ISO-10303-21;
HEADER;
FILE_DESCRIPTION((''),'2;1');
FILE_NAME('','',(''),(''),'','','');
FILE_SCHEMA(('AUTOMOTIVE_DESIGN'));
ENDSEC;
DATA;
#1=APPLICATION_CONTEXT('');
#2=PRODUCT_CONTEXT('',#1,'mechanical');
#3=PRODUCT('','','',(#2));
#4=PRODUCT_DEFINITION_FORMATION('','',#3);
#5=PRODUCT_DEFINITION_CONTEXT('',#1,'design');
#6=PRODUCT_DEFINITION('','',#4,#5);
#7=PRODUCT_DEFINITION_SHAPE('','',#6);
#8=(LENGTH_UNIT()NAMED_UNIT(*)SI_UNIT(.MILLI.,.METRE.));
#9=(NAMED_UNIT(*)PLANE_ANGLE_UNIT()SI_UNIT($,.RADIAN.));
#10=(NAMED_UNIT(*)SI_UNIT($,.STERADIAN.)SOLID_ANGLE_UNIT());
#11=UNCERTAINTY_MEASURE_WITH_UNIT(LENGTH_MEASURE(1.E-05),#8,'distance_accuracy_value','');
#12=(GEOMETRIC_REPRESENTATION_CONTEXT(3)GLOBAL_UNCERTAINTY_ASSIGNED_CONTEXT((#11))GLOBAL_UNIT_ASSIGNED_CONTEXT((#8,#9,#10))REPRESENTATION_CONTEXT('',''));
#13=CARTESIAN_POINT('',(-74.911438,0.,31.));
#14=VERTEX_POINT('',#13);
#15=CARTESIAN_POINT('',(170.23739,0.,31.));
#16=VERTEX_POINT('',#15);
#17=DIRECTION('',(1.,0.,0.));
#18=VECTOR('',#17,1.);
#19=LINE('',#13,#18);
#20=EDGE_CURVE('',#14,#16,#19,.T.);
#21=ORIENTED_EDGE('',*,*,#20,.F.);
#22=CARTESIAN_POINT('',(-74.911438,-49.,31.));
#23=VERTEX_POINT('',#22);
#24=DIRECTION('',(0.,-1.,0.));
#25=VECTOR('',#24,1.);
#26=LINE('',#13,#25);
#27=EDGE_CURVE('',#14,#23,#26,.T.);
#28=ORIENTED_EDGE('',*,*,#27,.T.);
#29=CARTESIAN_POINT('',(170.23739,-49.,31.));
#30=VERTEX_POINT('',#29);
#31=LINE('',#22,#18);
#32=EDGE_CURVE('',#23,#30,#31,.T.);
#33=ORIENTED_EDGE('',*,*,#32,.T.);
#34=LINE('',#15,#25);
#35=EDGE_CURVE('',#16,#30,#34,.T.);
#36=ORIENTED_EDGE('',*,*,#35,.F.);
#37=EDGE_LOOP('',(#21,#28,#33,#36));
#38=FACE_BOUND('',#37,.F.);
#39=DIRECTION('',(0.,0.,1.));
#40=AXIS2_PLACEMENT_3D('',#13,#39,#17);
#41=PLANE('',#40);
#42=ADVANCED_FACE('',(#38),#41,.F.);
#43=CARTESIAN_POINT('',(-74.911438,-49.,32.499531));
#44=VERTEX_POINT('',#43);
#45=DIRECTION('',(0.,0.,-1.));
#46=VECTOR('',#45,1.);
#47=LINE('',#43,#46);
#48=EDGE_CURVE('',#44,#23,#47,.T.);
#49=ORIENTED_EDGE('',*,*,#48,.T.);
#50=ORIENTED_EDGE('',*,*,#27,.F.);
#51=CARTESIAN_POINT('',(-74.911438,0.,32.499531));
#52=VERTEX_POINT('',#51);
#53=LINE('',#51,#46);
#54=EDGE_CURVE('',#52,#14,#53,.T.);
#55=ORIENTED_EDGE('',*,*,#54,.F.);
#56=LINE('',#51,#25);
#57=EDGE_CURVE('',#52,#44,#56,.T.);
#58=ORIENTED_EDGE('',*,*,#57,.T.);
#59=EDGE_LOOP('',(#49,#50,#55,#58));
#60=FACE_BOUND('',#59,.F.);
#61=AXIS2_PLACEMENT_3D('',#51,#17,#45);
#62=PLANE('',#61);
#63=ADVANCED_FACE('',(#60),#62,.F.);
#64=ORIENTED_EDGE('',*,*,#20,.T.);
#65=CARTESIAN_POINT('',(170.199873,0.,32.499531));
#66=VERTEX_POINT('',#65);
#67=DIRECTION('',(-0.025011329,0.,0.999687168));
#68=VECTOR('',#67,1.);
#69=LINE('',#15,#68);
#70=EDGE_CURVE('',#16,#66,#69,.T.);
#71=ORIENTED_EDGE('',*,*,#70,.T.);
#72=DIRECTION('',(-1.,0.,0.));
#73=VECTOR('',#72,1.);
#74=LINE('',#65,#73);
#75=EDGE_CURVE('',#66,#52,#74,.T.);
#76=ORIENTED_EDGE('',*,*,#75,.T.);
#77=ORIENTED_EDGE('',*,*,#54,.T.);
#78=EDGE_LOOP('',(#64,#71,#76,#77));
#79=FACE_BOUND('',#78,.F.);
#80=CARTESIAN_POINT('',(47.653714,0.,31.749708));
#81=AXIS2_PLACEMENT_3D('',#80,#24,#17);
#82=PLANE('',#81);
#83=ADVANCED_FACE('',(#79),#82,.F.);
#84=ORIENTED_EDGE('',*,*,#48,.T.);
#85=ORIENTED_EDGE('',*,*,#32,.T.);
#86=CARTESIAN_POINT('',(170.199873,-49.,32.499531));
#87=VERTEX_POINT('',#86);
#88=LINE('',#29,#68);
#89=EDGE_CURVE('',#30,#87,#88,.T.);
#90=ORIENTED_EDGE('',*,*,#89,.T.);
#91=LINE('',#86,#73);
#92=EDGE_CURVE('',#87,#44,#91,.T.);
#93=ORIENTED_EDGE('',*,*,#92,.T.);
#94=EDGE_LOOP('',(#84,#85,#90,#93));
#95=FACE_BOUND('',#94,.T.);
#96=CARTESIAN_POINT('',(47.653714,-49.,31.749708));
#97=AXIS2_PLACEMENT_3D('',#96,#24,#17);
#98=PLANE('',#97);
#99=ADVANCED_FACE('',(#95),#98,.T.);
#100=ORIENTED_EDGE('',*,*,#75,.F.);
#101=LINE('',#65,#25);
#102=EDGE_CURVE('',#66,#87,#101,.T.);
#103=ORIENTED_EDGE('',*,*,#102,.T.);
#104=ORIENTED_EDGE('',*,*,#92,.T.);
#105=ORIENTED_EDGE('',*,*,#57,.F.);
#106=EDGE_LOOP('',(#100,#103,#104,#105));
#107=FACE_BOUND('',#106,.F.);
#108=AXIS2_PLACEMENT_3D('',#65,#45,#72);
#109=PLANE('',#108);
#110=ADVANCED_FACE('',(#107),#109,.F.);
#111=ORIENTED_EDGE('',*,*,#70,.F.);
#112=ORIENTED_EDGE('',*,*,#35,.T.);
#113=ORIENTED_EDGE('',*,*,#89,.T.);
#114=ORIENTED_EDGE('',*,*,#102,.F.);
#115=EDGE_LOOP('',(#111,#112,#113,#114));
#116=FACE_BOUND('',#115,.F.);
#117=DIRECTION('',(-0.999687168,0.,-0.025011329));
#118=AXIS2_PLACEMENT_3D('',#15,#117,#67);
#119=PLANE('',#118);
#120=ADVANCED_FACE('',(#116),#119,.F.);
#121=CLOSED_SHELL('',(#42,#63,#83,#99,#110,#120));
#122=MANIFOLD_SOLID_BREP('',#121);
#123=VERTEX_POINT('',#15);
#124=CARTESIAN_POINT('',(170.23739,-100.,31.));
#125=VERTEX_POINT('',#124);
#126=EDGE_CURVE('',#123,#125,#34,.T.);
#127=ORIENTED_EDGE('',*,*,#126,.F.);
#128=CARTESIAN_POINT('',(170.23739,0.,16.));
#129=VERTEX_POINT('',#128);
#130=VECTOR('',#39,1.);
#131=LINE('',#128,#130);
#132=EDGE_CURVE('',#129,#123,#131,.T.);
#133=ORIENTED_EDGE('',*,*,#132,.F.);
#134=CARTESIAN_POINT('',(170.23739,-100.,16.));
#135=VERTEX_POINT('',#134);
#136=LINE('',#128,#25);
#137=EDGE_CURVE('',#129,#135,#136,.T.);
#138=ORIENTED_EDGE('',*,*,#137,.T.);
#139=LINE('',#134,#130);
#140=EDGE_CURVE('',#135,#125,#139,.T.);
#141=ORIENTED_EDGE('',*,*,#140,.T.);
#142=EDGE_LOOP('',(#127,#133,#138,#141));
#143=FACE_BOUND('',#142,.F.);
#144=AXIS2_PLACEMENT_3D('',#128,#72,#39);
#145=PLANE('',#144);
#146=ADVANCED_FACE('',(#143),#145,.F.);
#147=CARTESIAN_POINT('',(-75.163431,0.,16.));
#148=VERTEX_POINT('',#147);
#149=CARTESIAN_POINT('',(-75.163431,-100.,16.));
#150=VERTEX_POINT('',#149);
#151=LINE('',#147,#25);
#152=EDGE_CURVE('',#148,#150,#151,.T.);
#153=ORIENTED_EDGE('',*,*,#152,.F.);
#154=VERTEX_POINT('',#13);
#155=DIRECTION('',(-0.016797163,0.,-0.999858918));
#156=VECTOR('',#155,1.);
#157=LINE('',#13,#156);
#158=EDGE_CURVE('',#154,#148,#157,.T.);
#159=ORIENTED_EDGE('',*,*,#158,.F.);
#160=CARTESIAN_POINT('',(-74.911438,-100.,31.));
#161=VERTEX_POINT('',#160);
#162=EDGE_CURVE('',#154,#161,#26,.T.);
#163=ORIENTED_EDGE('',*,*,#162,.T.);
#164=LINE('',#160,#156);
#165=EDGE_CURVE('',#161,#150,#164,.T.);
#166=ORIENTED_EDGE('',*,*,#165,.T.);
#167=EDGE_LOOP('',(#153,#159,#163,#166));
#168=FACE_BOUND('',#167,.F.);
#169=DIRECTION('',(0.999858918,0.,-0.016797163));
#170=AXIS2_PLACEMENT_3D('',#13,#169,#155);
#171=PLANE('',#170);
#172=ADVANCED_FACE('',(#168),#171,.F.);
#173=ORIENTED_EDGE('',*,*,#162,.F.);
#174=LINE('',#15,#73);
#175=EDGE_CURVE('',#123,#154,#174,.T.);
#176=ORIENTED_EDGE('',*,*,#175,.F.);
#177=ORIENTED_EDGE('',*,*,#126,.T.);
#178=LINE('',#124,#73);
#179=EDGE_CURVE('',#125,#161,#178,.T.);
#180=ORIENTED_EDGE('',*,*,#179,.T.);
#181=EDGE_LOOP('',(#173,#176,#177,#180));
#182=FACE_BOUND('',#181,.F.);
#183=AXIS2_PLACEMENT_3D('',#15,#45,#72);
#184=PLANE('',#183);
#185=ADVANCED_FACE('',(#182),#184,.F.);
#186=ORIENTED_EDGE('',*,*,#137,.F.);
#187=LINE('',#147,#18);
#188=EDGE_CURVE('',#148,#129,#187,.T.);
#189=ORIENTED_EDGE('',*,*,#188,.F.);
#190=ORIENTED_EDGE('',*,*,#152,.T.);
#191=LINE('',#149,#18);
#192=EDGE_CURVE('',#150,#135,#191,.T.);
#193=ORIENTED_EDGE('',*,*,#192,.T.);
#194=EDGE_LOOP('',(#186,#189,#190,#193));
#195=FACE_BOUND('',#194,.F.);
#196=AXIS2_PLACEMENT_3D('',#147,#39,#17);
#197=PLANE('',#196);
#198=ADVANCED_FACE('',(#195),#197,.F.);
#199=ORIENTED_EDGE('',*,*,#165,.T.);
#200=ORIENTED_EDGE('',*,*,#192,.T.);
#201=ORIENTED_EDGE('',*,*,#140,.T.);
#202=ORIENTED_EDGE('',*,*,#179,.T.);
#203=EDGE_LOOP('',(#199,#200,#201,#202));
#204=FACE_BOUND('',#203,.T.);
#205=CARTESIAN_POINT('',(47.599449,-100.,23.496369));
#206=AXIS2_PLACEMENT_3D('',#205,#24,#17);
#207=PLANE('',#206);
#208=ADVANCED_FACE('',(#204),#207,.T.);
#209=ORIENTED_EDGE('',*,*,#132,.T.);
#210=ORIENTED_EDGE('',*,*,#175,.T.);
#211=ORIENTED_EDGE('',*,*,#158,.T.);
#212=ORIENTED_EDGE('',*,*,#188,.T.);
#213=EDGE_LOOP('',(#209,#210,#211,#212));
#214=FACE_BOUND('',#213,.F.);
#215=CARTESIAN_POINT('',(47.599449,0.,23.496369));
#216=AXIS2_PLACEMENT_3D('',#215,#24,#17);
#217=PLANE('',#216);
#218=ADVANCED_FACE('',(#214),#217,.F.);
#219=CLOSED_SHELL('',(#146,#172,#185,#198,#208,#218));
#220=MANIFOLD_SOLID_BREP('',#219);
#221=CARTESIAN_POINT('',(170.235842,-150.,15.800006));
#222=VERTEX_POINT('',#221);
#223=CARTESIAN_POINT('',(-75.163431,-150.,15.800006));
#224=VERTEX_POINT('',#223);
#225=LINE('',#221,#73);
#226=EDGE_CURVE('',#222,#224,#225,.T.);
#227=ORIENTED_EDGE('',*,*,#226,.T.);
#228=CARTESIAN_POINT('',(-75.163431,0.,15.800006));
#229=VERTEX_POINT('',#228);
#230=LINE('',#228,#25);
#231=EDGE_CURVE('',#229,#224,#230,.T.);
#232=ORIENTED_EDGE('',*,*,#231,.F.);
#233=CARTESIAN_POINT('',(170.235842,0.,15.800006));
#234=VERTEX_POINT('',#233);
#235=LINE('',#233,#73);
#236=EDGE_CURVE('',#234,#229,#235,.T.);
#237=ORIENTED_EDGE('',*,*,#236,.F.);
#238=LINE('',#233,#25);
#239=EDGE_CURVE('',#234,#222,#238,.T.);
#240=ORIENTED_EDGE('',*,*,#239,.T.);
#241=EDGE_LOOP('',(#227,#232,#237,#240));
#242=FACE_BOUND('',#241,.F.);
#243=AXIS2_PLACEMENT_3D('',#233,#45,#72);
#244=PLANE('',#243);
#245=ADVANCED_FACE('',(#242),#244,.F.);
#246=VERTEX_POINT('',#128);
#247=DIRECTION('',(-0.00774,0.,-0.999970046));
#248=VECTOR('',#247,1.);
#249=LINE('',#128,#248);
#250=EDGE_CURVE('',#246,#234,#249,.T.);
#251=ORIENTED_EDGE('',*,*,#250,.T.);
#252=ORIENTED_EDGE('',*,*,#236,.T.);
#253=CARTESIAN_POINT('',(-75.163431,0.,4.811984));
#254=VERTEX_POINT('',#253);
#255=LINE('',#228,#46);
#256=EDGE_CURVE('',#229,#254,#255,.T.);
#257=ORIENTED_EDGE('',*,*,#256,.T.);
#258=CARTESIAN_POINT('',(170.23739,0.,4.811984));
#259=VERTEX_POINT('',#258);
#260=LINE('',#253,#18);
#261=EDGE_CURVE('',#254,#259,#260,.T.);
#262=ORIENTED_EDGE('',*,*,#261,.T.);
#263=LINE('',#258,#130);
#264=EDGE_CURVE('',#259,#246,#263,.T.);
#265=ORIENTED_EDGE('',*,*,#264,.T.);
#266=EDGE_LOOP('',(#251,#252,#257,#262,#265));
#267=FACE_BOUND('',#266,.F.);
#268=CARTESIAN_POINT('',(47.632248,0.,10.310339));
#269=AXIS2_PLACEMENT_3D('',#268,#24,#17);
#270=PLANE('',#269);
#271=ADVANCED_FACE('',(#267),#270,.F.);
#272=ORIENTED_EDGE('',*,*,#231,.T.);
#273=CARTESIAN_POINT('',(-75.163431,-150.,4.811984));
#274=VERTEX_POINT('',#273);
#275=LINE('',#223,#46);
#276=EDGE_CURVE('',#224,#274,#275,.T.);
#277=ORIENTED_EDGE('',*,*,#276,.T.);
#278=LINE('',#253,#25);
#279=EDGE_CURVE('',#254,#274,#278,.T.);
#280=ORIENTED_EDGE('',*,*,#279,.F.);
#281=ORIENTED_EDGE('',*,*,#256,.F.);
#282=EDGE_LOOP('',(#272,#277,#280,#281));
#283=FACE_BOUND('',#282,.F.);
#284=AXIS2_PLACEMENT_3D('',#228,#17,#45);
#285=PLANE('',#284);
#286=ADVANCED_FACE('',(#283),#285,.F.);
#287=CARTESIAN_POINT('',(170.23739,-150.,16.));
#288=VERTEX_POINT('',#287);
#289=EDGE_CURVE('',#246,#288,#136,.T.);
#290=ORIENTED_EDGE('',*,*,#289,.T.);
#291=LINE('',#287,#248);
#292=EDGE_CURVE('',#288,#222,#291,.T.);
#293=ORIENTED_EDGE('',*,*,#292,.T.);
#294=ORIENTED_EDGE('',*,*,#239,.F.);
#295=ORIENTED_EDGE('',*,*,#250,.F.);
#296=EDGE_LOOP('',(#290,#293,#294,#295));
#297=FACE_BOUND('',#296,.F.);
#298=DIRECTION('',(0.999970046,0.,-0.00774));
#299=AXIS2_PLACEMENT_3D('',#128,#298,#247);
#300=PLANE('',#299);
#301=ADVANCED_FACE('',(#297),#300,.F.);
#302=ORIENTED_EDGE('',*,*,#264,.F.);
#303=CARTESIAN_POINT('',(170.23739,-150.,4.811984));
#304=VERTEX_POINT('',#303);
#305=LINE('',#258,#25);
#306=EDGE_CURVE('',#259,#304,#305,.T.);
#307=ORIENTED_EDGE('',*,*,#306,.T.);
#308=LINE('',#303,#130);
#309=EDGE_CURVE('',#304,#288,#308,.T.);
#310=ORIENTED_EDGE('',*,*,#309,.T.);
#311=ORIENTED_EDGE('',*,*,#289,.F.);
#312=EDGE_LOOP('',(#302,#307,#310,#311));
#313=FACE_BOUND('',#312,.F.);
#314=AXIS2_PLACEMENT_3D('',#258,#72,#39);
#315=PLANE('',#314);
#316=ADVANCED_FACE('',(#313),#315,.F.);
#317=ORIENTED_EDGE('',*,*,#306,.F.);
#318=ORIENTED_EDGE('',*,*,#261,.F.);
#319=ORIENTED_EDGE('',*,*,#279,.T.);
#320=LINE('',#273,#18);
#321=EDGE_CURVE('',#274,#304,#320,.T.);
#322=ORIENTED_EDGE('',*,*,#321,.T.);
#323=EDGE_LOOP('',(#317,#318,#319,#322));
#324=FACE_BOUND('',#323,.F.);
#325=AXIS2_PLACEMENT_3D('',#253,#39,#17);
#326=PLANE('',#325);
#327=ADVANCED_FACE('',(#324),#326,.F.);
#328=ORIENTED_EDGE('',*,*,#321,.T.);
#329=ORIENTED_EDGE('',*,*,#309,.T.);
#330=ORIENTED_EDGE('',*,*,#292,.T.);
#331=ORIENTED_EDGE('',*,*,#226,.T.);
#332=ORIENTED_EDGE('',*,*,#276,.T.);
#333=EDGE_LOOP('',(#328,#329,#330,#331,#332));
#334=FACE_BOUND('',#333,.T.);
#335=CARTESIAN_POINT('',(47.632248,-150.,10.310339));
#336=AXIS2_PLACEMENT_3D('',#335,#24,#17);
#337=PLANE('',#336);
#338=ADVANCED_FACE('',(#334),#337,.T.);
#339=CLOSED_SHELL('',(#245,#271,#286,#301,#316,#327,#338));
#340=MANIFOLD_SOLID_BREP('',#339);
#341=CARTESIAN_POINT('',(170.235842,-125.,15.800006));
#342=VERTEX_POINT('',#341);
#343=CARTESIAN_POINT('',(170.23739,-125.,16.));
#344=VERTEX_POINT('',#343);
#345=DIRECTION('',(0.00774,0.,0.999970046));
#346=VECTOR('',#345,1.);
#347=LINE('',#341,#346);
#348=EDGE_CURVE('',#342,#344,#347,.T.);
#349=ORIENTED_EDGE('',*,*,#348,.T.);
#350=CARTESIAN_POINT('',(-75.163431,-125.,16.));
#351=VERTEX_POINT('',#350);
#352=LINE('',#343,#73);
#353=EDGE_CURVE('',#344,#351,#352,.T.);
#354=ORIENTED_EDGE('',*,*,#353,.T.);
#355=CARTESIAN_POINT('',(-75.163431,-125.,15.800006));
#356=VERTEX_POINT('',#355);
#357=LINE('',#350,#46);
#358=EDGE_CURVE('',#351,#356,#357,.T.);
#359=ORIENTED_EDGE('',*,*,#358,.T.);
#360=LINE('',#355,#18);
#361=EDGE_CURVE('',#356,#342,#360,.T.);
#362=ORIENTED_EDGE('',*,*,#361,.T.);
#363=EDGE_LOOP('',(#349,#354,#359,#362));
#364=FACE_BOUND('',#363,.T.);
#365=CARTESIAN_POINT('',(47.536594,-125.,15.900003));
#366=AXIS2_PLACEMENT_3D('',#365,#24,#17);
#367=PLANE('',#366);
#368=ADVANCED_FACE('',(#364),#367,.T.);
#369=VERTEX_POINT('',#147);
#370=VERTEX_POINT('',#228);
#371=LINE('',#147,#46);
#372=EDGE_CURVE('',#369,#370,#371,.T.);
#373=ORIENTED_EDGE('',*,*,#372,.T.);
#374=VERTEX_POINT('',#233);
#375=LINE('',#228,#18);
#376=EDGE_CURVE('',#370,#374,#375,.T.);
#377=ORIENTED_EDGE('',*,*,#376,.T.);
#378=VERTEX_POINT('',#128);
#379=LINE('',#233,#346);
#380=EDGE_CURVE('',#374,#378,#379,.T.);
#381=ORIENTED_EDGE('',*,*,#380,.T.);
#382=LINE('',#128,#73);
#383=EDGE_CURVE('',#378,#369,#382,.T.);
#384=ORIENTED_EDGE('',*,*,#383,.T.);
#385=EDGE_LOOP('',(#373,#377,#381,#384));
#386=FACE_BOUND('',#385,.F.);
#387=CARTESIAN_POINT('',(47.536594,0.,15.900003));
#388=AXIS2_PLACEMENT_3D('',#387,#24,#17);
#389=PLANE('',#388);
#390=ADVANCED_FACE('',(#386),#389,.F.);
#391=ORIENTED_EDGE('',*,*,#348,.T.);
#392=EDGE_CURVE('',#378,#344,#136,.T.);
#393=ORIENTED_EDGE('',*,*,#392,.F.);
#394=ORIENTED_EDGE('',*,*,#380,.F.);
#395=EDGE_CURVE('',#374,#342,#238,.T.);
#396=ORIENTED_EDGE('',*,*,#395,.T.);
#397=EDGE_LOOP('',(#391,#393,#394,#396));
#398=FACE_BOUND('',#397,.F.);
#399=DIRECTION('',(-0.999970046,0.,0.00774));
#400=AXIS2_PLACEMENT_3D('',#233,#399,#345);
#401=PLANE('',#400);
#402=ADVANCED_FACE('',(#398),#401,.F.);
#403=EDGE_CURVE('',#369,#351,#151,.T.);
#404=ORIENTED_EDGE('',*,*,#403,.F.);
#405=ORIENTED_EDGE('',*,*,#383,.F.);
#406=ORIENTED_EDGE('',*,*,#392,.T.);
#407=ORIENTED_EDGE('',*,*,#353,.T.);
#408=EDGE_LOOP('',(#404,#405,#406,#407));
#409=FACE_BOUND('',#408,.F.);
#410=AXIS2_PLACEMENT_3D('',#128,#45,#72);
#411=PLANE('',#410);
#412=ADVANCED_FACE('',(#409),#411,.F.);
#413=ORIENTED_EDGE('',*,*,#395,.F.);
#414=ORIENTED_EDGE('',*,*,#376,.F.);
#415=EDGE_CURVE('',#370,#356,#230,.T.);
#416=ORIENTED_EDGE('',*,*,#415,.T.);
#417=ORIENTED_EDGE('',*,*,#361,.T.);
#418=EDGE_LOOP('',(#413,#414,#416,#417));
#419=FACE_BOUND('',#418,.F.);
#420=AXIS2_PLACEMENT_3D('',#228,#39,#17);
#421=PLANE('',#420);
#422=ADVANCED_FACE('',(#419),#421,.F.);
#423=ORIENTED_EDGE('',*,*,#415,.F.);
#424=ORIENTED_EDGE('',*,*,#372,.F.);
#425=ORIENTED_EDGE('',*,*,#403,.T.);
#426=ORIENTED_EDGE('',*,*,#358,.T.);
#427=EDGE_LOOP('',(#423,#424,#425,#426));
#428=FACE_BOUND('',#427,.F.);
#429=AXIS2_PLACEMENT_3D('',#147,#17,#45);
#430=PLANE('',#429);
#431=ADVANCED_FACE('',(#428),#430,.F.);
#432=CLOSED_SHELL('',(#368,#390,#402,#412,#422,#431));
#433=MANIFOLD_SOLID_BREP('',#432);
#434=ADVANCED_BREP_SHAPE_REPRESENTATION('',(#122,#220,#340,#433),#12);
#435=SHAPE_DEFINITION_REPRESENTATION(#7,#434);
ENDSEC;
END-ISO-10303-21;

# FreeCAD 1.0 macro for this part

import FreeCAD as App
import Part
import Sketcher
from FreeCAD import Vector

doc = App.newDocument("Part")
body = doc.addObject("PartDesign::Body", "Body")

sketch1 = doc.addObject("Sketcher::SketchObject", "Sketch")
body.addObject(sketch1)
sketch1.AttachmentSupport = (doc.XZ_Plane, [""])
sketch1.MapMode = "FlatFace"
sketch1.addGeometry([
    Part.LineSegment(Vector(-75.16, 16, 0), Vector(-75.16, 15.8, 0)),
    Part.LineSegment(Vector(-75.16, 15.8, 0), Vector(170.24, 15.8, 0)),
    Part.LineSegment(Vector(170.24, 15.8, 0), Vector(170.24, 16, 0)),
    Part.LineSegment(Vector(170.24, 16, 0), Vector(-75.16, 16, 0)),
], False)
sketch1.addConstraint([
    Sketcher.Constraint("Coincident", 0, 2, 1, 1),
    Sketcher.Constraint("Coincident", 1, 2, 2, 1),
    Sketcher.Constraint("Coincident", 2, 2, 3, 1),
    Sketcher.Constraint("Coincident", 3, 2, 0, 1),
    Sketcher.Constraint("Vertical", 0),
    Sketcher.Constraint("Horizontal", 1),
    Sketcher.Constraint("Horizontal", 3),
    Sketcher.Constraint("DistanceY", -1, 1, 2, 2, 16.0),
    Sketcher.Constraint("Distance", 2, 0.2),
    Sketcher.Constraint("DistanceX", 3, 2, 3, 1, 245.400821),
    Sketcher.Constraint("DistanceX", 1, 1, 1, 2, 245.399273),
    Sketcher.Constraint("DistanceX", 0, 2, -1, 1, 75.163431),
])
pad1 = doc.addObject("PartDesign::Pad", "Pad")
body.addObject(pad1)
pad1.Profile = sketch1
pad1.Length = 125
body2 = doc.addObject("PartDesign::Body", "Body001")

sketch2 = doc.addObject("Sketcher::SketchObject", "Sketch001")
body2.addObject(sketch2)
sketch2.AttachmentSupport = (doc.getObject("XZ_Plane001"), [""])
sketch2.MapMode = "FlatFace"
sketch2.addGeometry([
    Part.LineSegment(Vector(-75, 16, 0), Vector(170, 16, 0)),
    Part.LineSegment(Vector(170, 16, 0), Vector(170, 31, 0)),
    Part.LineSegment(Vector(170, 31, 0), Vector(-75, 31, 0)),
    Part.LineSegment(Vector(-75, 31, 0), Vector(-75, 16, 0)),
], False)
sketch2.addConstraint([
    Sketcher.Constraint("Coincident", 0, 2, 1, 1),
    Sketcher.Constraint("Coincident", 1, 2, 2, 1),
    Sketcher.Constraint("Coincident", 2, 2, 3, 1),
    Sketcher.Constraint("Coincident", 3, 2, 0, 1),
    Sketcher.Constraint("Horizontal", 0),
    Sketcher.Constraint("Vertical", 1),
    Sketcher.Constraint("Horizontal", 2),
    Sketcher.Constraint("DistanceY", 1, 1, 1, 2, 15.0),
    Sketcher.Constraint("DistanceY", -1, 1, 0, 2, 16.0),
    Sketcher.Constraint("DistanceX", 0, 1, 0, 2, 245.400821),
    Sketcher.Constraint("DistanceX", 2, 2, 2, 1, 245.148828),
    Sketcher.Constraint("DistanceX", -1, 1, 0, 2, 170.23739),
])
pad2 = doc.addObject("PartDesign::Pad", "Pad001")
body2.addObject(pad2)
pad2.Profile = sketch2
pad2.Length = 100
body3 = doc.addObject("PartDesign::Body", "Body002")

sketch3 = doc.addObject("Sketcher::SketchObject", "Sketch002")
body3.addObject(sketch3)
sketch3.AttachmentSupport = (doc.getObject("XZ_Plane002"), [""])
sketch3.MapMode = "FlatFace"
sketch3.addGeometry([
    Part.LineSegment(Vector(-74.9, 32.5, 0), Vector(-74.9, 31, 0)),
    Part.LineSegment(Vector(-74.9, 31, 0), Vector(170.2, 31, 0)),
    Part.LineSegment(Vector(170.2, 31, 0), Vector(170.2, 32.5, 0)),
    Part.LineSegment(Vector(170.2, 32.5, 0), Vector(-74.9, 32.5, 0)),
], False)
sketch3.addConstraint([
    Sketcher.Constraint("Coincident", 0, 2, 1, 1),
    Sketcher.Constraint("Coincident", 1, 2, 2, 1),
    Sketcher.Constraint("Coincident", 2, 2, 3, 1),
    Sketcher.Constraint("Coincident", 3, 2, 0, 1),
    Sketcher.Constraint("Vertical", 0),
    Sketcher.Constraint("Horizontal", 1),
    Sketcher.Constraint("Horizontal", 3),
    Sketcher.Constraint("DistanceY", -1, 1, 0, 2, 31.0),
    Sketcher.Constraint("Distance", 2, 1.5),
    Sketcher.Constraint("DistanceX", 1, 1, 1, 2, 245.148828),
    Sketcher.Constraint("DistanceX", 3, 2, 3, 1, 245.111311),
    Sketcher.Constraint("DistanceX", 0, 2, -1, 1, 74.911438),
])
pad3 = doc.addObject("PartDesign::Pad", "Pad002")
body3.addObject(pad3)
pad3.Profile = sketch3
pad3.Length = 49
body4 = doc.addObject("PartDesign::Body", "Body003")

sketch4 = doc.addObject("Sketcher::SketchObject", "Sketch003")
body4.addObject(sketch4)
sketch4.AttachmentSupport = (doc.getObject("XZ_Plane003"), [""])
sketch4.MapMode = "FlatFace"
sketch4.addGeometry([
    Part.LineSegment(Vector(170.24, 15.8, 0), Vector(-75.16, 15.8, 0)),
    Part.LineSegment(Vector(-75.16, 15.8, 0), Vector(-75.16, 4.81, 0)),
    Part.LineSegment(Vector(-75.16, 4.81, 0), Vector(170.24, 4.81, 0)),
    Part.LineSegment(Vector(170.24, 4.81, 0), Vector(170.24, 16, 0)),
    Part.LineSegment(Vector(170.24, 16, 0), Vector(170.24, 15.8, 0)),
], False)
sketch4.addConstraint([
    Sketcher.Constraint("Coincident", 0, 2, 1, 1),
    Sketcher.Constraint("Coincident", 1, 2, 2, 1),
    Sketcher.Constraint("Coincident", 2, 2, 3, 1),
    Sketcher.Constraint("Coincident", 3, 2, 4, 1),
    Sketcher.Constraint("Coincident", 4, 2, 0, 1),
    Sketcher.Constraint("Horizontal", 0),
    Sketcher.Constraint("Vertical", 1),
    Sketcher.Constraint("Horizontal", 2),
    Sketcher.Constraint("Vertical", 3),
    Sketcher.Constraint("DistanceY", -1, 1, 3, 2, 16.0),
    Sketcher.Constraint("Distance", 4, 0.2),
    Sketcher.Constraint("DistanceX", 2, 1, 2, 2, 245.400821),
    Sketcher.Constraint("DistanceX", 0, 2, 0, 1, 245.399273),
    Sketcher.Constraint("DistanceY", 1, 2, 1, 1, 10.988022),
    Sketcher.Constraint("DistanceX", 0, 2, -1, 1, 75.163431),
])
pad4 = doc.addObject("PartDesign::Pad", "Pad003")
body4.addObject(pad4)
pad4.Profile = sketch4
pad4.Length = 150

doc.recompute()
